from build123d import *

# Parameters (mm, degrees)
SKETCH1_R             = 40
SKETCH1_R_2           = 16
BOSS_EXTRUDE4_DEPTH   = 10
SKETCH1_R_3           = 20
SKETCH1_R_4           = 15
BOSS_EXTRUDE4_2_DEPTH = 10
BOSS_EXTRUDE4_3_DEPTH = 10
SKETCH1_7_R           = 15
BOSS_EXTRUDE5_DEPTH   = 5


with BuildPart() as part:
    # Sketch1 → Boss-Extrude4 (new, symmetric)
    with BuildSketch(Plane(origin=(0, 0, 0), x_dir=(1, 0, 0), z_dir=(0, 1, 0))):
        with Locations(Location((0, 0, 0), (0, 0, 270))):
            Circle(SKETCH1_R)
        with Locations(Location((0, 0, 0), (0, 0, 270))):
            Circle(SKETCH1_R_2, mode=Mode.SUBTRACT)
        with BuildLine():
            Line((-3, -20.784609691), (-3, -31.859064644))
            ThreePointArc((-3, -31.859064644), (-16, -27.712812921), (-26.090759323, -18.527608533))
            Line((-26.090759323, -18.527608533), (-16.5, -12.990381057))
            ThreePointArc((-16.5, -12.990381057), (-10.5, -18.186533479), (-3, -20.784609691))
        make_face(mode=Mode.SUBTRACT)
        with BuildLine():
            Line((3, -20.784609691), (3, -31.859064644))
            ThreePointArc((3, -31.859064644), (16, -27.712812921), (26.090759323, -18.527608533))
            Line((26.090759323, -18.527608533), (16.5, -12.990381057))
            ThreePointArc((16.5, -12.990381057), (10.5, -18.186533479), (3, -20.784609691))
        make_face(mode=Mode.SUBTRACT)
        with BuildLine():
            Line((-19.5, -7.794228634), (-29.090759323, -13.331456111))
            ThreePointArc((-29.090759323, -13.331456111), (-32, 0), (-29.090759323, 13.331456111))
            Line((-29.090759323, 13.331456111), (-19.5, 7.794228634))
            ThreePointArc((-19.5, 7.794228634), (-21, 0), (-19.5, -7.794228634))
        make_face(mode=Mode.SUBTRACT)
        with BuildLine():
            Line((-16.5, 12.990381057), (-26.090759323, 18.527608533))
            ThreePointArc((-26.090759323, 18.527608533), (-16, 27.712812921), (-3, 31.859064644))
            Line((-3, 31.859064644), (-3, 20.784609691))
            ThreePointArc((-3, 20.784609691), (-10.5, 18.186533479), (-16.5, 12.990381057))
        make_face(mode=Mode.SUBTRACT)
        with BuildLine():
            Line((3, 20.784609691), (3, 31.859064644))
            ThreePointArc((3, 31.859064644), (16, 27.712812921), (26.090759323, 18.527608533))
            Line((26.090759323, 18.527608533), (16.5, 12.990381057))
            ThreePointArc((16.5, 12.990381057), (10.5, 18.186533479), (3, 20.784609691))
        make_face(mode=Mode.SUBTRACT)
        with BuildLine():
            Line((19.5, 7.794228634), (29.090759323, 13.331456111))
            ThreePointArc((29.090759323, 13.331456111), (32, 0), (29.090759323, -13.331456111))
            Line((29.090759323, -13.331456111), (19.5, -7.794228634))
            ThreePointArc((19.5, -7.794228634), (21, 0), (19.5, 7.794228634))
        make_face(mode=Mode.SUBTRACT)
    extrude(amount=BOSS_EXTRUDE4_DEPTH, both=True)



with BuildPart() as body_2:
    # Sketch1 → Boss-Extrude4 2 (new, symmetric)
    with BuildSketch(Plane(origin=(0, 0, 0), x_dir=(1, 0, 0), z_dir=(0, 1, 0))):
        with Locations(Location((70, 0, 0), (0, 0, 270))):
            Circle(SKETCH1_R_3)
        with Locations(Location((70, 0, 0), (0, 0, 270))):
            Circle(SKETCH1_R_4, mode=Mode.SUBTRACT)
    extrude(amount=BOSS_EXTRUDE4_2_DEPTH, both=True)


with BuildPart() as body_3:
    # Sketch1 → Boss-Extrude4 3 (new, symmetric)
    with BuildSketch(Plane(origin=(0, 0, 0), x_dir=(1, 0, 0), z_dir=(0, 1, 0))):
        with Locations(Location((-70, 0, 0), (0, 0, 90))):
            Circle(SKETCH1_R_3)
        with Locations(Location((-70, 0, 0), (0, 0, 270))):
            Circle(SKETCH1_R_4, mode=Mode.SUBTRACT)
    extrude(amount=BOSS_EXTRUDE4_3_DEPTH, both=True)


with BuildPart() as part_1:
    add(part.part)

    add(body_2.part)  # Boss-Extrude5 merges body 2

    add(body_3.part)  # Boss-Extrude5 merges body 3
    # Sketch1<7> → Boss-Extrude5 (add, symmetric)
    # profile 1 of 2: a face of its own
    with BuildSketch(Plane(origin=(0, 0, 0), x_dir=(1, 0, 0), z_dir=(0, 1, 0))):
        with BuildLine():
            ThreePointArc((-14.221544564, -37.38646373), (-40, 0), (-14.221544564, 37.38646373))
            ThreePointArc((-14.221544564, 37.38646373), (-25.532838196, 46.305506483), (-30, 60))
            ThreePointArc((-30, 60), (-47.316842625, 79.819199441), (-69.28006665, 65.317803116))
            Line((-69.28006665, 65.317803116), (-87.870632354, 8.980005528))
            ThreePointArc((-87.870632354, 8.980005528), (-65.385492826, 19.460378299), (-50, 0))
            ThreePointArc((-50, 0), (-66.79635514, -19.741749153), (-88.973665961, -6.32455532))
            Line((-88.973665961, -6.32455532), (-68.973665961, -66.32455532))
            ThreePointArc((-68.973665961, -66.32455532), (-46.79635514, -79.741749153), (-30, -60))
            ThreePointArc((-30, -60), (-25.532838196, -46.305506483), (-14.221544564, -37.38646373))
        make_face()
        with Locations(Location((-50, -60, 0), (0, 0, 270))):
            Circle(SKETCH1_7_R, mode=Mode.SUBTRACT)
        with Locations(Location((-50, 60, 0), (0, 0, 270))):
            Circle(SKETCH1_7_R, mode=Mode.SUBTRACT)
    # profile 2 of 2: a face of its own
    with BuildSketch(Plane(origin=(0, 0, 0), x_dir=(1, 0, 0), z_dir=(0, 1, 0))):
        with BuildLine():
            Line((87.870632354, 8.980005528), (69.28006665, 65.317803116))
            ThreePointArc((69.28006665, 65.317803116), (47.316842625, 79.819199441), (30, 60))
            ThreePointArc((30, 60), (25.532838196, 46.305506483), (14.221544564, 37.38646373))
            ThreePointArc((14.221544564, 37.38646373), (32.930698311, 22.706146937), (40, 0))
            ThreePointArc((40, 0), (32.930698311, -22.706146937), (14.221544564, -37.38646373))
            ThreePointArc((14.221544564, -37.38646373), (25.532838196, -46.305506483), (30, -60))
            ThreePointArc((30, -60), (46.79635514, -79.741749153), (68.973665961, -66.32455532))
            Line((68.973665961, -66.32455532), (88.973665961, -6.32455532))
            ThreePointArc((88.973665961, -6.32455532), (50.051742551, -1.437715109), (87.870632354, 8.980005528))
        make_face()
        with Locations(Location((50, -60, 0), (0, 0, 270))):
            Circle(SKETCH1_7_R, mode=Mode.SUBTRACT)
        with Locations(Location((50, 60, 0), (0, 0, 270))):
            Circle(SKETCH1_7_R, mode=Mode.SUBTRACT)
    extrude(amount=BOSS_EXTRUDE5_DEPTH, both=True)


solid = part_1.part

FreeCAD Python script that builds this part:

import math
import FreeCAD as App
import Part
import Sketcher
Q = App.Units.Quantity

doc = App.newDocument("Part")
body = doc.addObject("PartDesign::Body", "Body")

sketch1 = body.newObject("Sketcher::SketchObject", "Sketch")
sketch1.AttachmentSupport = (doc.getObject("XZ_Plane"), [""])
sketch1.MapMode = "FlatFace"
sketch1.addGeometry(Part.Circle(App.Vector(0, 0, 0), App.Vector(0, 0, 1), 40), False)
sketch1.addGeometry(Part.ArcOfCircle(Part.Circle(App.Vector(0, 0, 0), App.Vector(0, 0, 1), 21), math.radians(-142), math.radians(-98)), False)
sketch1.addGeometry(Part.LineSegment(App.Vector(-16, -13, 0), App.Vector(-26, -19, 0)), False)
sketch1.addGeometry(Part.ArcOfCircle(Part.Circle(App.Vector(0, 0, 0), App.Vector(0, 0, 1), 32), math.radians(-145), math.radians(-95)), False)
sketch1.addGeometry(Part.LineSegment(App.Vector(-3, -32, 0), App.Vector(-3, -21, 0)), False)
sketch1.addGeometry(Part.ArcOfCircle(Part.Circle(App.Vector(0, 0, 0), App.Vector(0, 0, 1), 21), math.radians(158), math.radians(202)), False)
sketch1.addGeometry(Part.LineSegment(App.Vector(-20, 8, 0), App.Vector(-29, 13, 0)), False)
sketch1.addGeometry(Part.ArcOfCircle(Part.Circle(App.Vector(0, 0, 0), App.Vector(0, 0, 1), 32), math.radians(155), math.radians(205)), False)
sketch1.addGeometry(Part.LineSegment(App.Vector(-29, -13, 0), App.Vector(-20, -8, 0)), False)
sketch1.addGeometry(Part.ArcOfCircle(Part.Circle(App.Vector(0, 0, 0), App.Vector(0, 0, 1), 21), math.radians(98), math.radians(142)), False)
sketch1.addGeometry(Part.LineSegment(App.Vector(-3, 21, 0), App.Vector(-3, 32, 0)), False)
sketch1.addGeometry(Part.ArcOfCircle(Part.Circle(App.Vector(0, 0, 0), App.Vector(0, 0, 1), 32), math.radians(95), math.radians(145)), False)
sketch1.addGeometry(Part.LineSegment(App.Vector(-26, 19, 0), App.Vector(-16, 13, 0)), False)
sketch1.addGeometry(Part.ArcOfCircle(Part.Circle(App.Vector(0, 0, 0), App.Vector(0, 0, 1), 21), math.radians(-82), math.radians(-38)), False)
sketch1.addGeometry(Part.LineSegment(App.Vector(3, -21, 0), App.Vector(3, -32, 0)), False)
sketch1.addGeometry(Part.ArcOfCircle(Part.Circle(App.Vector(0, 0, 0), App.Vector(0, 0, 1), 32), math.radians(-85), math.radians(-35)), False)
sketch1.addGeometry(Part.LineSegment(App.Vector(26, -19, 0), App.Vector(16, -13, 0)), False)
sketch1.addGeometry(Part.ArcOfCircle(Part.Circle(App.Vector(0, 0, 0), App.Vector(0, 0, 1), 21), math.radians(-22), math.radians(22)), False)
sketch1.addGeometry(Part.LineSegment(App.Vector(20, -8, 0), App.Vector(29, -13, 0)), False)
sketch1.addGeometry(Part.ArcOfCircle(Part.Circle(App.Vector(0, 0, 0), App.Vector(0, 0, 1), 32), math.radians(-25), math.radians(25)), False)
sketch1.addGeometry(Part.LineSegment(App.Vector(29, 13, 0), App.Vector(20, 8, 0)), False)
sketch1.addGeometry(Part.Circle(App.Vector(0, 0, 0), App.Vector(0, 0, 1), 16), False)
sketch1.addGeometry(Part.LineSegment(App.Vector(3, 32, 0), App.Vector(3, 21, 0)), False)
sketch1.addGeometry(Part.ArcOfCircle(Part.Circle(App.Vector(0, 0, 0), App.Vector(0, 0, 1), 21), math.radians(38), math.radians(82)), False)
sketch1.addGeometry(Part.LineSegment(App.Vector(16, 13, 0), App.Vector(26, 19, 0)), False)
sketch1.addGeometry(Part.ArcOfCircle(Part.Circle(App.Vector(0, 0, 0), App.Vector(0, 0, 1), 32), math.radians(35), math.radians(85)), False)
sketch1.addConstraint(Sketcher.Constraint("Coincident", 1, 1, 2, 1))
sketch1.addConstraint(Sketcher.Constraint("Coincident", 2, 2, 3, 1))
sketch1.addConstraint(Sketcher.Constraint("Coincident", 3, 2, 4, 1))
sketch1.addConstraint(Sketcher.Constraint("Coincident", 4, 2, 1, 2))
sketch1.addConstraint(Sketcher.Constraint("Coincident", 5, 1, 6, 1))
sketch1.addConstraint(Sketcher.Constraint("Coincident", 6, 2, 7, 1))
sketch1.addConstraint(Sketcher.Constraint("Coincident", 7, 2, 8, 1))
sketch1.addConstraint(Sketcher.Constraint("Coincident", 8, 2, 5, 2))
sketch1.addConstraint(Sketcher.Constraint("Coincident", 9, 1, 10, 1))
sketch1.addConstraint(Sketcher.Constraint("Coincident", 10, 2, 11, 1))
sketch1.addConstraint(Sketcher.Constraint("Coincident", 11, 2, 12, 1))
sketch1.addConstraint(Sketcher.Constraint("Coincident", 12, 2, 9, 2))
sketch1.addConstraint(Sketcher.Constraint("Coincident", 13, 1, 14, 1))
sketch1.addConstraint(Sketcher.Constraint("Coincident", 14, 2, 15, 1))
sketch1.addConstraint(Sketcher.Constraint("Coincident", 15, 2, 16, 1))
sketch1.addConstraint(Sketcher.Constraint("Coincident", 16, 2, 13, 2))
sketch1.addConstraint(Sketcher.Constraint("Coincident", 17, 1, 18, 1))
sketch1.addConstraint(Sketcher.Constraint("Coincident", 18, 2, 19, 1))
sketch1.addConstraint(Sketcher.Constraint("Coincident", 19, 2, 20, 1))
sketch1.addConstraint(Sketcher.Constraint("Coincident", 20, 2, 17, 2))
sketch1.addConstraint(Sketcher.Constraint("Coincident", 22, 2, 23, 2))
sketch1.addConstraint(Sketcher.Constraint("Coincident", 23, 1, 24, 1))
sketch1.addConstraint(Sketcher.Constraint("Coincident", 24, 2, 25, 1))
sketch1.addConstraint(Sketcher.Constraint("Coincident", 25, 2, 22, 1))
sketch1.addConstraint(Sketcher.Constraint("Vertical", 4))
sketch1.addConstraint(Sketcher.Constraint("Vertical", 10))
sketch1.addConstraint(Sketcher.Constraint("Vertical", 14))
sketch1.addConstraint(Sketcher.Constraint("Vertical", 22))
sketch1.addConstraint(Sketcher.Constraint("Coincident", 0, 3, -1, 1))
sketch1.addConstraint(Sketcher.Constraint("Coincident", 1, 3, -1, 1))
sketch1.addConstraint(Sketcher.Constraint("Coincident", 3, 3, -1, 1))
sketch1.addConstraint(Sketcher.Constraint("Coincident", 5, 3, -1, 1))
sketch1.addConstraint(Sketcher.Constraint("Coincident", 7, 3, -1, 1))
sketch1.addConstraint(Sketcher.Constraint("Coincident", 9, 3, -1, 1))
sketch1.addConstraint(Sketcher.Constraint("Coincident", 11, 3, -1, 1))
sketch1.addConstraint(Sketcher.Constraint("Coincident", 13, 3, -1, 1))
sketch1.addConstraint(Sketcher.Constraint("Coincident", 15, 3, -1, 1))
sketch1.addConstraint(Sketcher.Constraint("Coincident", 17, 3, -1, 1))
sketch1.addConstraint(Sketcher.Constraint("Coincident", 19, 3, -1, 1))
sketch1.addConstraint(Sketcher.Constraint("Coincident", 21, 3, -1, 1))
sketch1.addConstraint(Sketcher.Constraint("Coincident", 23, 3, -1, 1))
sketch1.addConstraint(Sketcher.Constraint("Coincident", 25, 3, -1, 1))
sketch1.addConstraint(Sketcher.Constraint("Equal", 1, 5))
sketch1.addConstraint(Sketcher.Constraint("Equal", 3, 7))
sketch1.addConstraint(Sketcher.Constraint("Equal", 5, 9))
sketch1.addConstraint(Sketcher.Constraint("Equal", 7, 11))
sketch1.addConstraint(Sketcher.Constraint("Equal", 9, 13))
sketch1.addConstraint(Sketcher.Constraint("Equal", 11, 15))
sketch1.addConstraint(Sketcher.Constraint("Equal", 13, 17))
sketch1.addConstraint(Sketcher.Constraint("Equal", 15, 19))
sketch1.addConstraint(Sketcher.Constraint("Equal", 17, 23))
sketch1.addConstraint(Sketcher.Constraint("Equal", 19, 25))
sketch1.addConstraint(Sketcher.Constraint("Parallel", 2, 8))
sketch1.addConstraint(Sketcher.Constraint("Parallel", 6, 12))
sketch1.addConstraint(Sketcher.Constraint("Parallel", 12, 16))
sketch1.addConstraint(Sketcher.Constraint("Parallel", 16, 18))
sketch1.addConstraint(Sketcher.Constraint("Parallel", 8, 20))
sketch1.addConstraint(Sketcher.Constraint("Parallel", 20, 24))
sketch1.addConstraint(Sketcher.Constraint("Horizontal", 4, 2, 13, 1))
sketch1.addConstraint(Sketcher.Constraint("Horizontal", 2, 2, 15, 2))
sketch1.addConstraint(Sketcher.Constraint("Horizontal", 1, 1, 16, 2))
sketch1.addConstraint(Sketcher.Constraint("Horizontal", 8, 2, 17, 1))
sketch1.addConstraint(Sketcher.Constraint("Horizontal", 6, 2, 19, 2))
sketch1.addConstraint(Sketcher.Constraint("Horizontal", 9, 1, 22, 2))
sketch1.addConstraint(Sketcher.Constraint("Horizontal", 12, 2, 23, 1))
sketch1.addConstraint(Sketcher.Constraint("Vertical", 6, 2, 7, 2))
sketch1.addConstraint(Sketcher.Constraint("Vertical", 4, 2, 9, 1))
sketch1.addConstraint(Sketcher.Constraint("Vertical", 2, 2, 11, 2))
sketch1.addConstraint(Sketcher.Constraint("Equal", 2, 6))
sketch1.addConstraint(Sketcher.Constraint("Diameter", 0, Q("80 mm")))
sketch1.addConstraint(Sketcher.Constraint("Diameter", 21, Q("32 mm")))
sketch1.addConstraint(Sketcher.Constraint("Radius", 1, Q("21 mm")))
sketch1.addConstraint(Sketcher.Constraint("Radius", 3, Q("32 mm")))
sketch1.addConstraint(Sketcher.Constraint("Angle", 2, Q("-150 deg")))
sketch1.addConstraint(Sketcher.Constraint("DistanceX", 3, 2, -1, 1, Q("3 mm")))
sketch1.addConstraint(Sketcher.Constraint("DistanceX", 7, 2, 2, 2, Q("3 mm")))
pad1 = body.newObject("PartDesign::Pad", "Pad")
pad1.Profile = sketch1
pad1.Length = 20
pad1.Midplane = True
body2 = doc.addObject("PartDesign::Body", "Body001")

sketch2 = body2.newObject("Sketcher::SketchObject", "Sketch001")
sketch2.AttachmentSupport = (doc.getObject("XZ_Plane001"), [""])
sketch2.MapMode = "FlatFace"
sketch2.addGeometry(Part.Circle(App.Vector(70, 0, 0), App.Vector(0, 0, 1), 20), False)
sketch2.addGeometry(Part.Circle(App.Vector(70, 0, 0), App.Vector(0, 0, 1), 15), False)
sketch2.addConstraint(Sketcher.Constraint("Coincident", 1, 3, 0, 3))
sketch2.addConstraint(Sketcher.Constraint("PointOnObject", 0, 3, -1))
sketch2.addConstraint(Sketcher.Constraint("Diameter", 0, Q("40 mm")))
sketch2.addConstraint(Sketcher.Constraint("Diameter", 1, Q("30 mm")))
sketch2.addConstraint(Sketcher.Constraint("DistanceX", -1, 1, 0, 3, Q("70 mm")))
pad2 = body2.newObject("PartDesign::Pad", "Pad001")
pad2.Profile = sketch2
pad2.Length = 20
pad2.Midplane = True
body3 = doc.addObject("PartDesign::Body", "Body002")

sketch3 = body3.newObject("Sketcher::SketchObject", "Sketch002")
sketch3.AttachmentSupport = (doc.getObject("XZ_Plane002"), [""])
sketch3.MapMode = "FlatFace"
sketch3.addGeometry(Part.Circle(App.Vector(-70, 0, 0), App.Vector(0, 0, 1), 20), False)
sketch3.addGeometry(Part.Circle(App.Vector(-70, 0, 0), App.Vector(0, 0, 1), 15), False)
sketch3.addConstraint(Sketcher.Constraint("Coincident", 1, 3, 0, 3))
sketch3.addConstraint(Sketcher.Constraint("PointOnObject", 0, 3, -1))
sketch3.addConstraint(Sketcher.Constraint("Diameter", 0, Q("40 mm")))
sketch3.addConstraint(Sketcher.Constraint("Diameter", 1, Q("30 mm")))
sketch3.addConstraint(Sketcher.Constraint("DistanceX", 0, 3, -1, 1, Q("70 mm")))
pad3 = body3.newObject("PartDesign::Pad", "Pad002")
pad3.Profile = sketch3
pad3.Length = 20
pad3.Midplane = True
body.AllowCompound = True
doc.recompute()

boolean = body.newObject("PartDesign::Boolean", "Boolean")
boolean.Type = "Fuse"
boolean.addObjects([body2])
doc.recompute()

boolean2 = body.newObject("PartDesign::Boolean", "Boolean001")
boolean2.Type = "Fuse"
boolean2.addObjects([body3])

sketch4 = body.newObject("Sketcher::SketchObject", "Sketch003")
sketch4.AttachmentSupport = (doc.getObject("XZ_Plane"), [""])
sketch4.MapMode = "FlatFace"
sketch4.addGeometry(Part.ArcOfCircle(Part.Circle(App.Vector(0, 0, 0), App.Vector(0, 0, 1), 40), math.radians(110.826458), math.radians(249.173542)), False)
sketch4.addGeometry(Part.ArcOfCircle(Part.Circle(App.Vector(-5.142591, -60.532676, 0), App.Vector(0, 0, 1), 24.863116), math.radians(111.417277), math.radians(178.772382)), False)
sketch4.addGeometry(Part.ArcOfCircle(Part.Circle(App.Vector(-50, -60, 0), App.Vector(0, 0, 1), 20), math.radians(-164.580147), math.radians(0)), False)
sketch4.addGeometry(Part.LineSegment(App.Vector(-69.280067, -65.317803, 0), App.Vector(-87.870632, -8.980006, 0)), False)
sketch4.addGeometry(Part.ArcOfCircle(Part.Circle(App.Vector(-70, 0, 0), App.Vector(0, 0, 1), 20), math.radians(-153.320439), math.radians(0)), False)
sketch4.addGeometry(Part.ArcOfCircle(Part.Circle(App.Vector(-70, 0, 0), App.Vector(0, 0, 1), 20), math.radians(0), math.radians(161.565051)), False)
sketch4.addGeometry(Part.LineSegment(App.Vector(-88.973666, 6.324555, 0), App.Vector(-68.973666, 66.324555, 0)), False)
sketch4.addGeometry(Part.ArcOfCircle(Part.Circle(App.Vector(-50, 60, 0), App.Vector(0, 0, 1), 20), math.radians(0), math.radians(161.565051)), False)
sketch4.addGeometry(Part.ArcOfCircle(Part.Circle(App.Vector(-5.142591, 60.532676, 0), App.Vector(0, 0, 1), 24.863116), math.radians(-178.772382), math.radians(-111.417277)), False)
sketch4.addGeometry(Part.Circle(App.Vector(-50, 60, 0), App.Vector(0, 0, 1), 15), False)
sketch4.addGeometry(Part.Circle(App.Vector(-50, -60, 0), App.Vector(0, 0, 1), 15), False)
sketch4.addGeometry(Part.LineSegment(App.Vector(87.870632, -8.980006, 0), App.Vector(69.280067, -65.317803, 0)), False)
sketch4.addGeometry(Part.ArcOfCircle(Part.Circle(App.Vector(50, -60, 0), App.Vector(0, 0, 1), 20), math.radians(-180), math.radians(-15.419853)), False)
sketch4.addGeometry(Part.ArcOfCircle(Part.Circle(App.Vector(5.142591, -60.532676, 0), App.Vector(0, 0, 1), 24.863116), math.radians(1.227618), math.radians(68.582723)), False)
sketch4.addGeometry(Part.ArcOfCircle(Part.Circle(App.Vector(0, 0, 0), App.Vector(0, 0, 1), 40), math.radians(-69.173542), math.radians(0)), False)
sketch4.addGeometry(Part.ArcOfCircle(Part.Circle(App.Vector(0, 0, 0), App.Vector(0, 0, 1), 40), math.radians(0), math.radians(69.173542)), False)
sketch4.addGeometry(Part.ArcOfCircle(Part.Circle(App.Vector(5.142591, 60.532676, 0), App.Vector(0, 0, 1), 24.863116), math.radians(-68.582723), math.radians(-1.227618)), False)
sketch4.addGeometry(Part.ArcOfCircle(Part.Circle(App.Vector(50, 60, 0), App.Vector(0, 0, 1), 20), math.radians(18.434949), math.radians(180)), False)
sketch4.addGeometry(Part.LineSegment(App.Vector(68.973666, 66.324555, 0), App.Vector(88.973666, 6.324555, 0)), False)
sketch4.addGeometry(Part.ArcOfCircle(Part.Circle(App.Vector(70, 0, 0), App.Vector(0, 0, 1), 20), math.radians(18.434949), math.radians(333.320439)), False)
sketch4.addGeometry(Part.Circle(App.Vector(50, 60, 0), App.Vector(0, 0, 1), 15), False)
sketch4.addGeometry(Part.Circle(App.Vector(50, -60, 0), App.Vector(0, 0, 1), 15), False)
sketch4.addConstraint(Sketcher.Constraint("Coincident", 0, 2, 1, 1))
sketch4.addConstraint(Sketcher.Constraint("Coincident", 1, 2, 2, 2))
sketch4.addConstraint(Sketcher.Constraint("Coincident", 2, 1, 3, 1))
sketch4.addConstraint(Sketcher.Constraint("Coincident", 3, 2, 4, 1))
sketch4.addConstraint(Sketcher.Constraint("Tangent", 4, 2, 5, 1))
sketch4.addConstraint(Sketcher.Constraint("Tangent", 5, 2, 6, 1))
sketch4.addConstraint(Sketcher.Constraint("Tangent", 6, 2, 7, 2))
sketch4.addConstraint(Sketcher.Constraint("Coincident", 7, 1, 8, 1))
sketch4.addConstraint(Sketcher.Constraint("Coincident", 8, 2, 0, 1))
sketch4.addConstraint(Sketcher.Constraint("Coincident", 11, 2, 12, 2))
sketch4.addConstraint(Sketcher.Constraint("Coincident", 12, 1, 13, 1))
sketch4.addConstraint(Sketcher.Constraint("Coincident", 13, 2, 14, 1))
sketch4.addConstraint(Sketcher.Constraint("Tangent", 14, 2, 15, 1))
sketch4.addConstraint(Sketcher.Constraint("Coincident", 15, 2, 16, 1))
sketch4.addConstraint(Sketcher.Constraint("Coincident", 16, 2, 17, 2))
sketch4.addConstraint(Sketcher.Constraint("Tangent", 17, 1, 18, 1))
sketch4.addConstraint(Sketcher.Constraint("Tangent", 18, 2, 19, 1))
sketch4.addConstraint(Sketcher.Constraint("Coincident", 19, 2, 11, 1))
sketch4.addConstraint(Sketcher.Constraint("Coincident", 0, 3, -1, 1))
sketch4.addConstraint(Sketcher.Constraint("Coincident", 14, 3, -1, 1))
sketch4.addConstraint(Sketcher.Constraint("Coincident", 9, 3, 7, 3))
sketch4.addConstraint(Sketcher.Constraint("Coincident", 10, 3, 2, 3))
sketch4.addConstraint(Sketcher.Constraint("Coincident", 20, 3, 17, 3))
sketch4.addConstraint(Sketcher.Constraint("Coincident", 21, 3, 12, 3))
sketch4.addConstraint(Sketcher.Constraint("Equal", 2, 4))
sketch4.addConstraint(Sketcher.Constraint("Equal", 4, 5))
sketch4.addConstraint(Sketcher.Constraint("Equal", 5, 7))
sketch4.addConstraint(Sketcher.Constraint("Equal", 1, 8))
sketch4.addConstraint(Sketcher.Constraint("Equal", 9, 10))
sketch4.addConstraint(Sketcher.Constraint("Equal", 7, 12))
sketch4.addConstraint(Sketcher.Constraint("Equal", 8, 13))
sketch4.addConstraint(Sketcher.Constraint("Equal", 0, 14))
sketch4.addConstraint(Sketcher.Constraint("Equal", 14, 15))
sketch4.addConstraint(Sketcher.Constraint("Equal", 13, 16))
sketch4.addConstraint(Sketcher.Constraint("Equal", 12, 17))
sketch4.addConstraint(Sketcher.Constraint("Equal", 17, 19))
sketch4.addConstraint(Sketcher.Constraint("Equal", 10, 20))
sketch4.addConstraint(Sketcher.Constraint("Equal", 20, 21))
sketch4.addConstraint(Sketcher.Constraint("Symmetric", 7, 3, 12, 3, -1, 1))
sketch4.addConstraint(Sketcher.Constraint("Symmetric", 8, 3, 13, 3, -1, 1))
sketch4.addConstraint(Sketcher.Constraint("Symmetric", 1, 3, 16, 3, -1, 1))
sketch4.addConstraint(Sketcher.Constraint("Symmetric", 2, 3, 17, 3, -1, 1))
sketch4.addConstraint(Sketcher.Constraint("Symmetric", 4, 3, 19, 3, -1, 1))
sketch4.addConstraint(Sketcher.Constraint("Symmetric", 2, 3, 12, 3, -2))
sketch4.addConstraint(Sketcher.Constraint("Symmetric", 1, 3, 13, 3, -2))
sketch4.addConstraint(Sketcher.Constraint("Symmetric", 3, 2, 19, 2, -2))
sketch4.addConstraint(Sketcher.Constraint("PointOnObject", 4, 2, -1))
sketch4.addConstraint(Sketcher.Constraint("PointOnObject", 14, 2, -1))
sketch4.addConstraint(Sketcher.Constraint("Horizontal", 21, 3, 1, 2))
sketch4.addConstraint(Sketcher.Constraint("Horizontal", 2, 1, 11, 2))
sketch4.addConstraint(Sketcher.Constraint("Vertical", 10, 3, 4, 2))
sketch4.addConstraint(Sketcher.Constraint("Diameter", 9, Q("30 mm")))
sketch4.addConstraint(Sketcher.Constraint("Radius", 0, Q("40 mm")))
sketch4.addConstraint(Sketcher.Constraint("Radius", 2, Q("20 mm")))
sketch4.addConstraint(Sketcher.Constraint("DistanceX", 2, 3, -1, 1, Q("50 mm")))
sketch4.addConstraint(Sketcher.Constraint("DistanceY", 2, 3, -1, 1, Q("60 mm")))
sketch4.addConstraint(Sketcher.Constraint("Radius", 1, Q("24.863116 mm")))
sketch4.addConstraint(Sketcher.Constraint("Distance", 3, Q("59.325851 mm")))
sketch4.addConstraint(Sketcher.Constraint("DistanceX", 1, 3, -1, 1, Q("5.142591 mm")))
sketch4.addConstraint(Sketcher.Constraint("DistanceY", 2, 1, 0, 2, Q("27.931339 mm")))
pad4 = body.newObject("PartDesign::Pad", "Pad003")
pad4.Profile = sketch4
pad4.Length = 10
pad4.Midplane = True

doc.recompute()
